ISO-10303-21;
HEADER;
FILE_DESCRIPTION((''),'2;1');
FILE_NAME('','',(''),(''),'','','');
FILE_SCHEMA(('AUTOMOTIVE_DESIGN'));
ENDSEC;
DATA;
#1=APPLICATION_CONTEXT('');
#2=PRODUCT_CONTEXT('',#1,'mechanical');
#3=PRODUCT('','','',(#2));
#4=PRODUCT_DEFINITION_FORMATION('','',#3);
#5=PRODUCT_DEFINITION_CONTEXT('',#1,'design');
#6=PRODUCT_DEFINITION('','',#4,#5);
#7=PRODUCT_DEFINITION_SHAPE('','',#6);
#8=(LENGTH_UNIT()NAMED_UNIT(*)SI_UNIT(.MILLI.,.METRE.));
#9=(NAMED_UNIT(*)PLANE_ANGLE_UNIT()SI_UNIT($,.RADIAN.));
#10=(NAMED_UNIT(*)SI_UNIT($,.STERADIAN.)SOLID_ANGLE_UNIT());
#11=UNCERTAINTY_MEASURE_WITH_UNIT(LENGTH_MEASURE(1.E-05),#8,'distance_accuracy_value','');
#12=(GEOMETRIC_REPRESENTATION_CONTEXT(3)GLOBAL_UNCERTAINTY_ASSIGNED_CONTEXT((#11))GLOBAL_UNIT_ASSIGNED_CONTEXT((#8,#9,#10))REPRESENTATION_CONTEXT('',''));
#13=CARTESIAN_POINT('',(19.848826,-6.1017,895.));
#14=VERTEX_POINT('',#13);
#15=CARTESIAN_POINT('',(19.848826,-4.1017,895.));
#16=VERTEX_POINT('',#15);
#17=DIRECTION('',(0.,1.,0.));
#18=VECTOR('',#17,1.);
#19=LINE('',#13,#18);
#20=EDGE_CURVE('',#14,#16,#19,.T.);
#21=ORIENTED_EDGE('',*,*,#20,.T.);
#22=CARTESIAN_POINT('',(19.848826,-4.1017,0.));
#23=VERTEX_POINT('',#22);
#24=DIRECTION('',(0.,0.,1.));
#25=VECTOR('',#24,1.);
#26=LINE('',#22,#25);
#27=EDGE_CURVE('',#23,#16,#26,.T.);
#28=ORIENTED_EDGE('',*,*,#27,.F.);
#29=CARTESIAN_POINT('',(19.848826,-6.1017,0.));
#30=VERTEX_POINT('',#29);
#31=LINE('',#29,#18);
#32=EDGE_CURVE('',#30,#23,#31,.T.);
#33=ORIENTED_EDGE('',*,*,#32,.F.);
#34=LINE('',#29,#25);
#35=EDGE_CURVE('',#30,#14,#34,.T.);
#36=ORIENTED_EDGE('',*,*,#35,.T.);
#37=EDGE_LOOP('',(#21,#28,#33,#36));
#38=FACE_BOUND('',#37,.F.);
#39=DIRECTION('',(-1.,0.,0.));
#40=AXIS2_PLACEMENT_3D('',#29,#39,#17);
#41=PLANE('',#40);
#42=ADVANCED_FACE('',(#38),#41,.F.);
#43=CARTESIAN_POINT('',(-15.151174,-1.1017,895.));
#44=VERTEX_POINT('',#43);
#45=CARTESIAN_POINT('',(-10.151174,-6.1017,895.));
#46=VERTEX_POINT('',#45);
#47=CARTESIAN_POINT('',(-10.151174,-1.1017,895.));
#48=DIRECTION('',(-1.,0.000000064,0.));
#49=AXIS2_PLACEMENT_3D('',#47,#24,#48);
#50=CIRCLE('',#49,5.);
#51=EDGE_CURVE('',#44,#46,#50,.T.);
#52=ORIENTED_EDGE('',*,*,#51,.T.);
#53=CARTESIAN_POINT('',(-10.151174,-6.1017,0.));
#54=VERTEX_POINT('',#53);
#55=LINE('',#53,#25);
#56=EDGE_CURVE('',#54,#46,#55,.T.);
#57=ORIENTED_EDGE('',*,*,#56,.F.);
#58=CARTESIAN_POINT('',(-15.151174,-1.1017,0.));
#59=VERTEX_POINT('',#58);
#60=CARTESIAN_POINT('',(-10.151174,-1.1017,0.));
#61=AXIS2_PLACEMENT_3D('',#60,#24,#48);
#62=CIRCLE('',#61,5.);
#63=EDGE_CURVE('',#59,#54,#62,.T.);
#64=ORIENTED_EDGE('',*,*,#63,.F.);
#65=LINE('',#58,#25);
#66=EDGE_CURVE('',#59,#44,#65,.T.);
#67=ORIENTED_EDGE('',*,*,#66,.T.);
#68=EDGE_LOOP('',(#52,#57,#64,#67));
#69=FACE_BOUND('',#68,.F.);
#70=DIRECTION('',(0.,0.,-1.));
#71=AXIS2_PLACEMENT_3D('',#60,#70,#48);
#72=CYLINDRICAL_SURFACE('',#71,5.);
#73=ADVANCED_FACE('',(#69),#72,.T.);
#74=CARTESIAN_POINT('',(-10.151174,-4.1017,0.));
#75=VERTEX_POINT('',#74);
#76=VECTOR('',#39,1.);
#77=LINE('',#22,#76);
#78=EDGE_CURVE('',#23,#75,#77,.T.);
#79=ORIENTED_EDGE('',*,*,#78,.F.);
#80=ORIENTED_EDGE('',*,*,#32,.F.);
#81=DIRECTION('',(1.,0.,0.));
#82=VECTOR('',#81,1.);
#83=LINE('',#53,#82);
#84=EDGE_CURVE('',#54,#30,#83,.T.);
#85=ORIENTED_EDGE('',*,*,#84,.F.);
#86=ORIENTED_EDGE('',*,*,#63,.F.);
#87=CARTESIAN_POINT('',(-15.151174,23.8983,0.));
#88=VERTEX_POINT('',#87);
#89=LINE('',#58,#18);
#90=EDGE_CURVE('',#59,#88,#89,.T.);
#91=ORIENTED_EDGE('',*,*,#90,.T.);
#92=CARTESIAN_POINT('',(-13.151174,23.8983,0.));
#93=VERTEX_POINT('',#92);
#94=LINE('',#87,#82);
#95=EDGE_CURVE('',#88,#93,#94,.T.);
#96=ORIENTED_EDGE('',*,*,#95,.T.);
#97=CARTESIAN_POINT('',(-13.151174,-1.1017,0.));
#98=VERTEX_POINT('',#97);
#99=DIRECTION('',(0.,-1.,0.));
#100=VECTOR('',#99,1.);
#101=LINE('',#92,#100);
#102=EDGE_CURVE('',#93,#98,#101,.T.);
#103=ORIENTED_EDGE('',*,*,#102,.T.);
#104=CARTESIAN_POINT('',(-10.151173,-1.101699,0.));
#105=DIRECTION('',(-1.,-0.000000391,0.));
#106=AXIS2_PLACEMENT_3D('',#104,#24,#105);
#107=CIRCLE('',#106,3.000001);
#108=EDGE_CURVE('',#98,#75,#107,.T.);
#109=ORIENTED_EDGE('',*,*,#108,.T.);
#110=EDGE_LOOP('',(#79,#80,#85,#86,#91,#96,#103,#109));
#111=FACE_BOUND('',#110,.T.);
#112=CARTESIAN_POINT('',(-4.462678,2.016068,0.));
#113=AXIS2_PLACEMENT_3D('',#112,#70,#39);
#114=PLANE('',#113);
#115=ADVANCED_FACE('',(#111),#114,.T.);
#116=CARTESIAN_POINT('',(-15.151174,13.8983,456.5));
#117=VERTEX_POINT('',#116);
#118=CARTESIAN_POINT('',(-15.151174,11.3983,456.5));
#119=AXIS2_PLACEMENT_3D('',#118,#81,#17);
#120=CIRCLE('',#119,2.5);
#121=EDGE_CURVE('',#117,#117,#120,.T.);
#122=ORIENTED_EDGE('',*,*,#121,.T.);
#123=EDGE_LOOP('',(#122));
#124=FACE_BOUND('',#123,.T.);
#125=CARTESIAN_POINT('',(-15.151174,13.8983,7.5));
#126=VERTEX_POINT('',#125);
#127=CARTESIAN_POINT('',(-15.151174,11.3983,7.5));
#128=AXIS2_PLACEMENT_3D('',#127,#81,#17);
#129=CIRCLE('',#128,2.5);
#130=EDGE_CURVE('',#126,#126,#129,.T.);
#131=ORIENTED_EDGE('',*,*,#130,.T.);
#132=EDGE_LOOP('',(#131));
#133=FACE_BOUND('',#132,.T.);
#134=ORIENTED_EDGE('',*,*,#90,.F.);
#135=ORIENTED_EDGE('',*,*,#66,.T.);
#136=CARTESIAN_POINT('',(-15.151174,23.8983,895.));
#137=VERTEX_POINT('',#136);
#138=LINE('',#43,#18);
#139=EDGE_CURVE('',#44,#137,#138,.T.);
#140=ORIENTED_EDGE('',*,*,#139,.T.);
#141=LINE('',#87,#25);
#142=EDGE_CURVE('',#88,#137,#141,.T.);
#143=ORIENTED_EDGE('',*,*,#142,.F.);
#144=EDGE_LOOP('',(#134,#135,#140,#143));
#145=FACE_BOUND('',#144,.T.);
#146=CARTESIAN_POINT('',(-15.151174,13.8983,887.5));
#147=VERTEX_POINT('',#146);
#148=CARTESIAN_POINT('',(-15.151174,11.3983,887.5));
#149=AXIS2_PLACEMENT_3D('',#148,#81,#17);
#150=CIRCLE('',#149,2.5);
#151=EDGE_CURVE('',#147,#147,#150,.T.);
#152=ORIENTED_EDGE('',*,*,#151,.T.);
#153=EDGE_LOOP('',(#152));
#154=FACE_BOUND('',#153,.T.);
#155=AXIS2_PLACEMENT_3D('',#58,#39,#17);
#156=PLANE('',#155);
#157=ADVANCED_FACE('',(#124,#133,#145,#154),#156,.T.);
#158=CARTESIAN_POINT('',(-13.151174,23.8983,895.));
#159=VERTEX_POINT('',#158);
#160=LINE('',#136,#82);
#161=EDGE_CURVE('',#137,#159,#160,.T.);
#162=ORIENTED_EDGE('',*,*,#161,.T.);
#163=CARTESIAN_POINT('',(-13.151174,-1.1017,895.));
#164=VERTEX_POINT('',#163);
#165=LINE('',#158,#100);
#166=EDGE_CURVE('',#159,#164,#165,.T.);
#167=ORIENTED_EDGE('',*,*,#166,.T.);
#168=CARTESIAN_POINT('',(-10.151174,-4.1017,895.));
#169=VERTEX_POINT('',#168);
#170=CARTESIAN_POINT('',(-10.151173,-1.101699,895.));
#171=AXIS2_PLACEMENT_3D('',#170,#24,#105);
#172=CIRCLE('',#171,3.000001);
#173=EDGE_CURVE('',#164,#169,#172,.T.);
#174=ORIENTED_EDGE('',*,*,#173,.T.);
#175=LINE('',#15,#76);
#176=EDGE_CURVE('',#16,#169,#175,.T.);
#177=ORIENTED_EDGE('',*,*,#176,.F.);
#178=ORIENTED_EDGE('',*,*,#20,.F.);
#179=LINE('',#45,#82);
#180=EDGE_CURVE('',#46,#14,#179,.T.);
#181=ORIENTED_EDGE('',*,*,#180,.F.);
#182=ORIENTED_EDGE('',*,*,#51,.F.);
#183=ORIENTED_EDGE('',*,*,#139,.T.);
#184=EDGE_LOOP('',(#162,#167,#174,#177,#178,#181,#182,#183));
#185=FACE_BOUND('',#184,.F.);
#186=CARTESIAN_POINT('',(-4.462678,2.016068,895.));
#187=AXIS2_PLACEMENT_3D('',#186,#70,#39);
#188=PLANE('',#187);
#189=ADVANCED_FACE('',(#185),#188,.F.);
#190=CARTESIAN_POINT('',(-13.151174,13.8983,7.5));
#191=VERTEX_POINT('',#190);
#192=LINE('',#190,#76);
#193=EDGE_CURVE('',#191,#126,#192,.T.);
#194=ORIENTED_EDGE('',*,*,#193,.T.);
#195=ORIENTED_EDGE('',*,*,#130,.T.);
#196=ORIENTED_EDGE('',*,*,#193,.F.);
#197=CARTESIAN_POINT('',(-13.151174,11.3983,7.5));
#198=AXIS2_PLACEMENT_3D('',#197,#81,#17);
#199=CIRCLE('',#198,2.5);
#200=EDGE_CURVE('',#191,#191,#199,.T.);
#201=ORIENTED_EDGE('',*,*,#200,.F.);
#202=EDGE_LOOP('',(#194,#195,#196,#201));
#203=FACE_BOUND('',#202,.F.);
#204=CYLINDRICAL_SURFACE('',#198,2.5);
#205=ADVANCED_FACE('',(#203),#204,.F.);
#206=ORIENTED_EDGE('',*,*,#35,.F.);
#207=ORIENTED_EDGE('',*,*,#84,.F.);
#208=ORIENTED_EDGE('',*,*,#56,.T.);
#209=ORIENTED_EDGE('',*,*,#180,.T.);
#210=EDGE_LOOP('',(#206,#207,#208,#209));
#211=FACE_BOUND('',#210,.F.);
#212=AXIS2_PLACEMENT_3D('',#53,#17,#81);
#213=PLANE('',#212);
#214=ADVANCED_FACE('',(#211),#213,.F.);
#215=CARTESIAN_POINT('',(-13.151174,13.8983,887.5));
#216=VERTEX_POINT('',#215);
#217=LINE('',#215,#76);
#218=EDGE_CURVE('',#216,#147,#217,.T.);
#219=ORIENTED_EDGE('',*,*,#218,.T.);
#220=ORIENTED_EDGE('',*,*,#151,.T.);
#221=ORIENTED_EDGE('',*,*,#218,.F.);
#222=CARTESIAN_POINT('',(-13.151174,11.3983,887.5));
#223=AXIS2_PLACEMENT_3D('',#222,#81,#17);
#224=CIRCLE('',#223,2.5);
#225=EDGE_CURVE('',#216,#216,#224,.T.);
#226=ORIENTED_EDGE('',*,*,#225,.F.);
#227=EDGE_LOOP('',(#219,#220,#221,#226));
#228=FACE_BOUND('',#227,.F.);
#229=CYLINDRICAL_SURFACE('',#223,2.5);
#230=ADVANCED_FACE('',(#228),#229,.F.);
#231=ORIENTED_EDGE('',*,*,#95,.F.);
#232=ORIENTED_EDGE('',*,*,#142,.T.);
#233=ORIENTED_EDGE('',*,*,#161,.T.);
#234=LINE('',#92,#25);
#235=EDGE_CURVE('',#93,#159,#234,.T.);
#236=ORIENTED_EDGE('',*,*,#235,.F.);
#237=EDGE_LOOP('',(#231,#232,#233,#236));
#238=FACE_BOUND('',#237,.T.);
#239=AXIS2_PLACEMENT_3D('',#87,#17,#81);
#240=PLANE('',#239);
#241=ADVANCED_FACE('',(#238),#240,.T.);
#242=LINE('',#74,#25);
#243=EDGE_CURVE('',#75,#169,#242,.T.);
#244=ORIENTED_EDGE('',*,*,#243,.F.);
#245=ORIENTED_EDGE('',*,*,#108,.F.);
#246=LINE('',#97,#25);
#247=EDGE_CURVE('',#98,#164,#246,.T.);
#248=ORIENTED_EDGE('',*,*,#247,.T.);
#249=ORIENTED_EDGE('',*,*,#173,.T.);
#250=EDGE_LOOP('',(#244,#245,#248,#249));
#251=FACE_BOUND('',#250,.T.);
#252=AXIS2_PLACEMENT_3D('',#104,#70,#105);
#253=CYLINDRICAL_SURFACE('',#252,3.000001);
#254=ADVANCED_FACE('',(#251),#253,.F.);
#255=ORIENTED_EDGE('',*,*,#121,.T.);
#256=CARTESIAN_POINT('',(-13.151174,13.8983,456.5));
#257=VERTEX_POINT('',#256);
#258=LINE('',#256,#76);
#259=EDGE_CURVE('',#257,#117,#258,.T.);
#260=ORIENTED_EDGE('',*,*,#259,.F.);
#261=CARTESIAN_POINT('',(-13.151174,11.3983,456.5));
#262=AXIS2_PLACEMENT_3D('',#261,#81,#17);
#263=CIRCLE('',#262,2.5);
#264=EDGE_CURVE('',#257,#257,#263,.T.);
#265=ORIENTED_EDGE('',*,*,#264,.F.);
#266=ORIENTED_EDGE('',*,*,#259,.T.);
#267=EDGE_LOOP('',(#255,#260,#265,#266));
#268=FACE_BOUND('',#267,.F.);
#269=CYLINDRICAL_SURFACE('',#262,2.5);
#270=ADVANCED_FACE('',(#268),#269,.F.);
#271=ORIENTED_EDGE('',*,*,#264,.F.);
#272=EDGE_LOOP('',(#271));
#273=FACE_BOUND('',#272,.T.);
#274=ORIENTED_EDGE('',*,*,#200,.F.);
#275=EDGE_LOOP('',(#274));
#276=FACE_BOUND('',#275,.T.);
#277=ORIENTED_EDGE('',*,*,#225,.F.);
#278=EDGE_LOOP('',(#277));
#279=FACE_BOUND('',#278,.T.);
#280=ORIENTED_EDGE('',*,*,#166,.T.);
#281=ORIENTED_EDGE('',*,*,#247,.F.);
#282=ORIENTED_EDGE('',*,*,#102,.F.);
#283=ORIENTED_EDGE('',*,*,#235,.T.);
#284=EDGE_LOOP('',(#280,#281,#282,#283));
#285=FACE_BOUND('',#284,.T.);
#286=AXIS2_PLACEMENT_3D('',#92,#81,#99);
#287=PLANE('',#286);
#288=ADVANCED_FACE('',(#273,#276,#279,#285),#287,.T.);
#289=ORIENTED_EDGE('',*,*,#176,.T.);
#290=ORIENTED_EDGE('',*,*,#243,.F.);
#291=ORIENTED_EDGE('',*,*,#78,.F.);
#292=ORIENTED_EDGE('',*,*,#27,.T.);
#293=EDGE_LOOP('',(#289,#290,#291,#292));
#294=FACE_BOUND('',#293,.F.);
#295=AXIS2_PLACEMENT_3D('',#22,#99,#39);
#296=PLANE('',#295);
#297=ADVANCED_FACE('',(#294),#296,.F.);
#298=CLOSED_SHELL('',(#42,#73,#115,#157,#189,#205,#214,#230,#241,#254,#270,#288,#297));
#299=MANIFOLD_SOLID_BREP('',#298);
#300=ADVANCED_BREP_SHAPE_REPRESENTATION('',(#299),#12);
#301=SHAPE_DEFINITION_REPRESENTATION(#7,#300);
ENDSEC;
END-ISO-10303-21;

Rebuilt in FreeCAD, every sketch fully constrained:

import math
import FreeCAD as App
import Part
import Sketcher
from FreeCAD import Vector
Q = App.Units.Quantity

doc = App.newDocument("Part")
body = doc.addObject("PartDesign::Body", "Body")

sketch1 = body.newObject("Sketcher::SketchObject", "Sketch")
sketch1.AttachmentSupport = (doc.getObject("XY_Plane"), [""])
sketch1.MapMode = "FlatFace"
sketch1.addGeometry([
    Part.LineSegment(Vector(-13.151174, 23.8983, 0), Vector(-15.151174, 23.8983, 0)),
    Part.LineSegment(Vector(-15.151174, 23.8983, 0), Vector(-15.151174, -1.1017, 0)),
    Part.ArcOfCircle(Part.Circle(Vector(-10.151174, -1.1017, 0), Vector(0, 0, 1), 5), math.radians(179.999996), math.radians(270.000004)),
    Part.LineSegment(Vector(-10.151174, -6.1017, 0), Vector(19.848826, -6.1017, 0)),
    Part.LineSegment(Vector(19.848826, -6.1017, 0), Vector(19.848826, -4.1017, 0)),
    Part.LineSegment(Vector(19.848826, -4.1017, 0), Vector(-10.151174, -4.1017, 0)),
    Part.ArcOfCircle(Part.Circle(Vector(-10.151173, -1.101699, 0), Vector(0, 0, 1), 3.000001), math.radians(-179.999978), math.radians(-90.000022)),
    Part.LineSegment(Vector(-13.151174, -1.1017, 0), Vector(-13.151174, 23.8983, 0)),
], False)
sketch1.addConstraint([
    Sketcher.Constraint("Coincident", 0, 2, 1, 1),
    Sketcher.Constraint("Tangent", 1, 2, 2, 1),
    Sketcher.Constraint("Tangent", 2, 2, 3, 1),
    Sketcher.Constraint("Coincident", 3, 2, 4, 1),
    Sketcher.Constraint("Coincident", 4, 2, 5, 1),
    Sketcher.Constraint("Tangent", 5, 2, 6, 2),
    Sketcher.Constraint("Tangent", 6, 1, 7, 1),
    Sketcher.Constraint("Coincident", 7, 2, 0, 1),
    Sketcher.Constraint("Horizontal", 0),
    Sketcher.Constraint("Vertical", 1),
    Sketcher.Constraint("Horizontal", 3),
    Sketcher.Constraint("Vertical", 4),
    Sketcher.Constraint("Horizontal", 5),
    Sketcher.Constraint("Vertical", 7),
    Sketcher.Constraint("Coincident", 6, 3, 2, 3),
    Sketcher.Constraint("Radius", 2, Q("5 mm")),
    Sketcher.Constraint("Radius", 6, Q("3.000001 mm")),
    Sketcher.Constraint("DistanceX", 3, 1, 3, 2, Q("30 mm")),
    Sketcher.Constraint("DistanceY", 1, 2, 1, 1, Q("25 mm")),
    Sketcher.Constraint("DistanceY", 2, 3, -1, 1, Q("1.1017 mm")),
    Sketcher.Constraint("DistanceX", 2, 3, -1, 1, Q("10.151174 mm")),
])
pad1 = body.newObject("PartDesign::Pad", "Pad")
pad1.Profile = sketch1
pad1.Length = 895

sketch2 = body.newObject("Sketcher::SketchObject", "Sketch001")
sketch2.AttachmentSupport = (doc.getObject("YZ_Plane"), [""])
sketch2.MapMode = "FlatFace"
sketch2.AttachmentOffset = App.Placement(Vector(0, 0, -13.151174), App.Rotation())
sketch2.addGeometry([
    Part.Circle(Vector(11.3983, 887.5, 0), Vector(0, 0, 1), 2.5),
    Part.Circle(Vector(11.3983, 456.5, 0), Vector(0, 0, 1), 2.5),
    Part.Circle(Vector(11.3983, 7.5, 0), Vector(0, 0, 1), 2.5),
], False)
sketch2.addConstraint([
    Sketcher.Constraint("Equal", 0, 1),
    Sketcher.Constraint("Equal", 1, 2),
    Sketcher.Constraint("Vertical", 0, 3, 1, 3),
    Sketcher.Constraint("Vertical", 1, 3, 2, 3),
    Sketcher.Constraint("Diameter", 0, Q("5 mm")),
    Sketcher.Constraint("DistanceY", 1, 3, 0, 3, Q("431 mm")),
    Sketcher.Constraint("DistanceY", 2, 3, 1, 3, Q("449 mm")),
    Sketcher.Constraint("DistanceY", -1, 1, 0, 3, Q("887.5 mm")),
    Sketcher.Constraint("DistanceX", -1, 1, 0, 3, Q("11.3983 mm")),
])
pocket1 = body.newObject("PartDesign::Pocket", "Pocket")
pocket1.Profile = sketch2
pocket1.Length = 5

doc.recompute()
